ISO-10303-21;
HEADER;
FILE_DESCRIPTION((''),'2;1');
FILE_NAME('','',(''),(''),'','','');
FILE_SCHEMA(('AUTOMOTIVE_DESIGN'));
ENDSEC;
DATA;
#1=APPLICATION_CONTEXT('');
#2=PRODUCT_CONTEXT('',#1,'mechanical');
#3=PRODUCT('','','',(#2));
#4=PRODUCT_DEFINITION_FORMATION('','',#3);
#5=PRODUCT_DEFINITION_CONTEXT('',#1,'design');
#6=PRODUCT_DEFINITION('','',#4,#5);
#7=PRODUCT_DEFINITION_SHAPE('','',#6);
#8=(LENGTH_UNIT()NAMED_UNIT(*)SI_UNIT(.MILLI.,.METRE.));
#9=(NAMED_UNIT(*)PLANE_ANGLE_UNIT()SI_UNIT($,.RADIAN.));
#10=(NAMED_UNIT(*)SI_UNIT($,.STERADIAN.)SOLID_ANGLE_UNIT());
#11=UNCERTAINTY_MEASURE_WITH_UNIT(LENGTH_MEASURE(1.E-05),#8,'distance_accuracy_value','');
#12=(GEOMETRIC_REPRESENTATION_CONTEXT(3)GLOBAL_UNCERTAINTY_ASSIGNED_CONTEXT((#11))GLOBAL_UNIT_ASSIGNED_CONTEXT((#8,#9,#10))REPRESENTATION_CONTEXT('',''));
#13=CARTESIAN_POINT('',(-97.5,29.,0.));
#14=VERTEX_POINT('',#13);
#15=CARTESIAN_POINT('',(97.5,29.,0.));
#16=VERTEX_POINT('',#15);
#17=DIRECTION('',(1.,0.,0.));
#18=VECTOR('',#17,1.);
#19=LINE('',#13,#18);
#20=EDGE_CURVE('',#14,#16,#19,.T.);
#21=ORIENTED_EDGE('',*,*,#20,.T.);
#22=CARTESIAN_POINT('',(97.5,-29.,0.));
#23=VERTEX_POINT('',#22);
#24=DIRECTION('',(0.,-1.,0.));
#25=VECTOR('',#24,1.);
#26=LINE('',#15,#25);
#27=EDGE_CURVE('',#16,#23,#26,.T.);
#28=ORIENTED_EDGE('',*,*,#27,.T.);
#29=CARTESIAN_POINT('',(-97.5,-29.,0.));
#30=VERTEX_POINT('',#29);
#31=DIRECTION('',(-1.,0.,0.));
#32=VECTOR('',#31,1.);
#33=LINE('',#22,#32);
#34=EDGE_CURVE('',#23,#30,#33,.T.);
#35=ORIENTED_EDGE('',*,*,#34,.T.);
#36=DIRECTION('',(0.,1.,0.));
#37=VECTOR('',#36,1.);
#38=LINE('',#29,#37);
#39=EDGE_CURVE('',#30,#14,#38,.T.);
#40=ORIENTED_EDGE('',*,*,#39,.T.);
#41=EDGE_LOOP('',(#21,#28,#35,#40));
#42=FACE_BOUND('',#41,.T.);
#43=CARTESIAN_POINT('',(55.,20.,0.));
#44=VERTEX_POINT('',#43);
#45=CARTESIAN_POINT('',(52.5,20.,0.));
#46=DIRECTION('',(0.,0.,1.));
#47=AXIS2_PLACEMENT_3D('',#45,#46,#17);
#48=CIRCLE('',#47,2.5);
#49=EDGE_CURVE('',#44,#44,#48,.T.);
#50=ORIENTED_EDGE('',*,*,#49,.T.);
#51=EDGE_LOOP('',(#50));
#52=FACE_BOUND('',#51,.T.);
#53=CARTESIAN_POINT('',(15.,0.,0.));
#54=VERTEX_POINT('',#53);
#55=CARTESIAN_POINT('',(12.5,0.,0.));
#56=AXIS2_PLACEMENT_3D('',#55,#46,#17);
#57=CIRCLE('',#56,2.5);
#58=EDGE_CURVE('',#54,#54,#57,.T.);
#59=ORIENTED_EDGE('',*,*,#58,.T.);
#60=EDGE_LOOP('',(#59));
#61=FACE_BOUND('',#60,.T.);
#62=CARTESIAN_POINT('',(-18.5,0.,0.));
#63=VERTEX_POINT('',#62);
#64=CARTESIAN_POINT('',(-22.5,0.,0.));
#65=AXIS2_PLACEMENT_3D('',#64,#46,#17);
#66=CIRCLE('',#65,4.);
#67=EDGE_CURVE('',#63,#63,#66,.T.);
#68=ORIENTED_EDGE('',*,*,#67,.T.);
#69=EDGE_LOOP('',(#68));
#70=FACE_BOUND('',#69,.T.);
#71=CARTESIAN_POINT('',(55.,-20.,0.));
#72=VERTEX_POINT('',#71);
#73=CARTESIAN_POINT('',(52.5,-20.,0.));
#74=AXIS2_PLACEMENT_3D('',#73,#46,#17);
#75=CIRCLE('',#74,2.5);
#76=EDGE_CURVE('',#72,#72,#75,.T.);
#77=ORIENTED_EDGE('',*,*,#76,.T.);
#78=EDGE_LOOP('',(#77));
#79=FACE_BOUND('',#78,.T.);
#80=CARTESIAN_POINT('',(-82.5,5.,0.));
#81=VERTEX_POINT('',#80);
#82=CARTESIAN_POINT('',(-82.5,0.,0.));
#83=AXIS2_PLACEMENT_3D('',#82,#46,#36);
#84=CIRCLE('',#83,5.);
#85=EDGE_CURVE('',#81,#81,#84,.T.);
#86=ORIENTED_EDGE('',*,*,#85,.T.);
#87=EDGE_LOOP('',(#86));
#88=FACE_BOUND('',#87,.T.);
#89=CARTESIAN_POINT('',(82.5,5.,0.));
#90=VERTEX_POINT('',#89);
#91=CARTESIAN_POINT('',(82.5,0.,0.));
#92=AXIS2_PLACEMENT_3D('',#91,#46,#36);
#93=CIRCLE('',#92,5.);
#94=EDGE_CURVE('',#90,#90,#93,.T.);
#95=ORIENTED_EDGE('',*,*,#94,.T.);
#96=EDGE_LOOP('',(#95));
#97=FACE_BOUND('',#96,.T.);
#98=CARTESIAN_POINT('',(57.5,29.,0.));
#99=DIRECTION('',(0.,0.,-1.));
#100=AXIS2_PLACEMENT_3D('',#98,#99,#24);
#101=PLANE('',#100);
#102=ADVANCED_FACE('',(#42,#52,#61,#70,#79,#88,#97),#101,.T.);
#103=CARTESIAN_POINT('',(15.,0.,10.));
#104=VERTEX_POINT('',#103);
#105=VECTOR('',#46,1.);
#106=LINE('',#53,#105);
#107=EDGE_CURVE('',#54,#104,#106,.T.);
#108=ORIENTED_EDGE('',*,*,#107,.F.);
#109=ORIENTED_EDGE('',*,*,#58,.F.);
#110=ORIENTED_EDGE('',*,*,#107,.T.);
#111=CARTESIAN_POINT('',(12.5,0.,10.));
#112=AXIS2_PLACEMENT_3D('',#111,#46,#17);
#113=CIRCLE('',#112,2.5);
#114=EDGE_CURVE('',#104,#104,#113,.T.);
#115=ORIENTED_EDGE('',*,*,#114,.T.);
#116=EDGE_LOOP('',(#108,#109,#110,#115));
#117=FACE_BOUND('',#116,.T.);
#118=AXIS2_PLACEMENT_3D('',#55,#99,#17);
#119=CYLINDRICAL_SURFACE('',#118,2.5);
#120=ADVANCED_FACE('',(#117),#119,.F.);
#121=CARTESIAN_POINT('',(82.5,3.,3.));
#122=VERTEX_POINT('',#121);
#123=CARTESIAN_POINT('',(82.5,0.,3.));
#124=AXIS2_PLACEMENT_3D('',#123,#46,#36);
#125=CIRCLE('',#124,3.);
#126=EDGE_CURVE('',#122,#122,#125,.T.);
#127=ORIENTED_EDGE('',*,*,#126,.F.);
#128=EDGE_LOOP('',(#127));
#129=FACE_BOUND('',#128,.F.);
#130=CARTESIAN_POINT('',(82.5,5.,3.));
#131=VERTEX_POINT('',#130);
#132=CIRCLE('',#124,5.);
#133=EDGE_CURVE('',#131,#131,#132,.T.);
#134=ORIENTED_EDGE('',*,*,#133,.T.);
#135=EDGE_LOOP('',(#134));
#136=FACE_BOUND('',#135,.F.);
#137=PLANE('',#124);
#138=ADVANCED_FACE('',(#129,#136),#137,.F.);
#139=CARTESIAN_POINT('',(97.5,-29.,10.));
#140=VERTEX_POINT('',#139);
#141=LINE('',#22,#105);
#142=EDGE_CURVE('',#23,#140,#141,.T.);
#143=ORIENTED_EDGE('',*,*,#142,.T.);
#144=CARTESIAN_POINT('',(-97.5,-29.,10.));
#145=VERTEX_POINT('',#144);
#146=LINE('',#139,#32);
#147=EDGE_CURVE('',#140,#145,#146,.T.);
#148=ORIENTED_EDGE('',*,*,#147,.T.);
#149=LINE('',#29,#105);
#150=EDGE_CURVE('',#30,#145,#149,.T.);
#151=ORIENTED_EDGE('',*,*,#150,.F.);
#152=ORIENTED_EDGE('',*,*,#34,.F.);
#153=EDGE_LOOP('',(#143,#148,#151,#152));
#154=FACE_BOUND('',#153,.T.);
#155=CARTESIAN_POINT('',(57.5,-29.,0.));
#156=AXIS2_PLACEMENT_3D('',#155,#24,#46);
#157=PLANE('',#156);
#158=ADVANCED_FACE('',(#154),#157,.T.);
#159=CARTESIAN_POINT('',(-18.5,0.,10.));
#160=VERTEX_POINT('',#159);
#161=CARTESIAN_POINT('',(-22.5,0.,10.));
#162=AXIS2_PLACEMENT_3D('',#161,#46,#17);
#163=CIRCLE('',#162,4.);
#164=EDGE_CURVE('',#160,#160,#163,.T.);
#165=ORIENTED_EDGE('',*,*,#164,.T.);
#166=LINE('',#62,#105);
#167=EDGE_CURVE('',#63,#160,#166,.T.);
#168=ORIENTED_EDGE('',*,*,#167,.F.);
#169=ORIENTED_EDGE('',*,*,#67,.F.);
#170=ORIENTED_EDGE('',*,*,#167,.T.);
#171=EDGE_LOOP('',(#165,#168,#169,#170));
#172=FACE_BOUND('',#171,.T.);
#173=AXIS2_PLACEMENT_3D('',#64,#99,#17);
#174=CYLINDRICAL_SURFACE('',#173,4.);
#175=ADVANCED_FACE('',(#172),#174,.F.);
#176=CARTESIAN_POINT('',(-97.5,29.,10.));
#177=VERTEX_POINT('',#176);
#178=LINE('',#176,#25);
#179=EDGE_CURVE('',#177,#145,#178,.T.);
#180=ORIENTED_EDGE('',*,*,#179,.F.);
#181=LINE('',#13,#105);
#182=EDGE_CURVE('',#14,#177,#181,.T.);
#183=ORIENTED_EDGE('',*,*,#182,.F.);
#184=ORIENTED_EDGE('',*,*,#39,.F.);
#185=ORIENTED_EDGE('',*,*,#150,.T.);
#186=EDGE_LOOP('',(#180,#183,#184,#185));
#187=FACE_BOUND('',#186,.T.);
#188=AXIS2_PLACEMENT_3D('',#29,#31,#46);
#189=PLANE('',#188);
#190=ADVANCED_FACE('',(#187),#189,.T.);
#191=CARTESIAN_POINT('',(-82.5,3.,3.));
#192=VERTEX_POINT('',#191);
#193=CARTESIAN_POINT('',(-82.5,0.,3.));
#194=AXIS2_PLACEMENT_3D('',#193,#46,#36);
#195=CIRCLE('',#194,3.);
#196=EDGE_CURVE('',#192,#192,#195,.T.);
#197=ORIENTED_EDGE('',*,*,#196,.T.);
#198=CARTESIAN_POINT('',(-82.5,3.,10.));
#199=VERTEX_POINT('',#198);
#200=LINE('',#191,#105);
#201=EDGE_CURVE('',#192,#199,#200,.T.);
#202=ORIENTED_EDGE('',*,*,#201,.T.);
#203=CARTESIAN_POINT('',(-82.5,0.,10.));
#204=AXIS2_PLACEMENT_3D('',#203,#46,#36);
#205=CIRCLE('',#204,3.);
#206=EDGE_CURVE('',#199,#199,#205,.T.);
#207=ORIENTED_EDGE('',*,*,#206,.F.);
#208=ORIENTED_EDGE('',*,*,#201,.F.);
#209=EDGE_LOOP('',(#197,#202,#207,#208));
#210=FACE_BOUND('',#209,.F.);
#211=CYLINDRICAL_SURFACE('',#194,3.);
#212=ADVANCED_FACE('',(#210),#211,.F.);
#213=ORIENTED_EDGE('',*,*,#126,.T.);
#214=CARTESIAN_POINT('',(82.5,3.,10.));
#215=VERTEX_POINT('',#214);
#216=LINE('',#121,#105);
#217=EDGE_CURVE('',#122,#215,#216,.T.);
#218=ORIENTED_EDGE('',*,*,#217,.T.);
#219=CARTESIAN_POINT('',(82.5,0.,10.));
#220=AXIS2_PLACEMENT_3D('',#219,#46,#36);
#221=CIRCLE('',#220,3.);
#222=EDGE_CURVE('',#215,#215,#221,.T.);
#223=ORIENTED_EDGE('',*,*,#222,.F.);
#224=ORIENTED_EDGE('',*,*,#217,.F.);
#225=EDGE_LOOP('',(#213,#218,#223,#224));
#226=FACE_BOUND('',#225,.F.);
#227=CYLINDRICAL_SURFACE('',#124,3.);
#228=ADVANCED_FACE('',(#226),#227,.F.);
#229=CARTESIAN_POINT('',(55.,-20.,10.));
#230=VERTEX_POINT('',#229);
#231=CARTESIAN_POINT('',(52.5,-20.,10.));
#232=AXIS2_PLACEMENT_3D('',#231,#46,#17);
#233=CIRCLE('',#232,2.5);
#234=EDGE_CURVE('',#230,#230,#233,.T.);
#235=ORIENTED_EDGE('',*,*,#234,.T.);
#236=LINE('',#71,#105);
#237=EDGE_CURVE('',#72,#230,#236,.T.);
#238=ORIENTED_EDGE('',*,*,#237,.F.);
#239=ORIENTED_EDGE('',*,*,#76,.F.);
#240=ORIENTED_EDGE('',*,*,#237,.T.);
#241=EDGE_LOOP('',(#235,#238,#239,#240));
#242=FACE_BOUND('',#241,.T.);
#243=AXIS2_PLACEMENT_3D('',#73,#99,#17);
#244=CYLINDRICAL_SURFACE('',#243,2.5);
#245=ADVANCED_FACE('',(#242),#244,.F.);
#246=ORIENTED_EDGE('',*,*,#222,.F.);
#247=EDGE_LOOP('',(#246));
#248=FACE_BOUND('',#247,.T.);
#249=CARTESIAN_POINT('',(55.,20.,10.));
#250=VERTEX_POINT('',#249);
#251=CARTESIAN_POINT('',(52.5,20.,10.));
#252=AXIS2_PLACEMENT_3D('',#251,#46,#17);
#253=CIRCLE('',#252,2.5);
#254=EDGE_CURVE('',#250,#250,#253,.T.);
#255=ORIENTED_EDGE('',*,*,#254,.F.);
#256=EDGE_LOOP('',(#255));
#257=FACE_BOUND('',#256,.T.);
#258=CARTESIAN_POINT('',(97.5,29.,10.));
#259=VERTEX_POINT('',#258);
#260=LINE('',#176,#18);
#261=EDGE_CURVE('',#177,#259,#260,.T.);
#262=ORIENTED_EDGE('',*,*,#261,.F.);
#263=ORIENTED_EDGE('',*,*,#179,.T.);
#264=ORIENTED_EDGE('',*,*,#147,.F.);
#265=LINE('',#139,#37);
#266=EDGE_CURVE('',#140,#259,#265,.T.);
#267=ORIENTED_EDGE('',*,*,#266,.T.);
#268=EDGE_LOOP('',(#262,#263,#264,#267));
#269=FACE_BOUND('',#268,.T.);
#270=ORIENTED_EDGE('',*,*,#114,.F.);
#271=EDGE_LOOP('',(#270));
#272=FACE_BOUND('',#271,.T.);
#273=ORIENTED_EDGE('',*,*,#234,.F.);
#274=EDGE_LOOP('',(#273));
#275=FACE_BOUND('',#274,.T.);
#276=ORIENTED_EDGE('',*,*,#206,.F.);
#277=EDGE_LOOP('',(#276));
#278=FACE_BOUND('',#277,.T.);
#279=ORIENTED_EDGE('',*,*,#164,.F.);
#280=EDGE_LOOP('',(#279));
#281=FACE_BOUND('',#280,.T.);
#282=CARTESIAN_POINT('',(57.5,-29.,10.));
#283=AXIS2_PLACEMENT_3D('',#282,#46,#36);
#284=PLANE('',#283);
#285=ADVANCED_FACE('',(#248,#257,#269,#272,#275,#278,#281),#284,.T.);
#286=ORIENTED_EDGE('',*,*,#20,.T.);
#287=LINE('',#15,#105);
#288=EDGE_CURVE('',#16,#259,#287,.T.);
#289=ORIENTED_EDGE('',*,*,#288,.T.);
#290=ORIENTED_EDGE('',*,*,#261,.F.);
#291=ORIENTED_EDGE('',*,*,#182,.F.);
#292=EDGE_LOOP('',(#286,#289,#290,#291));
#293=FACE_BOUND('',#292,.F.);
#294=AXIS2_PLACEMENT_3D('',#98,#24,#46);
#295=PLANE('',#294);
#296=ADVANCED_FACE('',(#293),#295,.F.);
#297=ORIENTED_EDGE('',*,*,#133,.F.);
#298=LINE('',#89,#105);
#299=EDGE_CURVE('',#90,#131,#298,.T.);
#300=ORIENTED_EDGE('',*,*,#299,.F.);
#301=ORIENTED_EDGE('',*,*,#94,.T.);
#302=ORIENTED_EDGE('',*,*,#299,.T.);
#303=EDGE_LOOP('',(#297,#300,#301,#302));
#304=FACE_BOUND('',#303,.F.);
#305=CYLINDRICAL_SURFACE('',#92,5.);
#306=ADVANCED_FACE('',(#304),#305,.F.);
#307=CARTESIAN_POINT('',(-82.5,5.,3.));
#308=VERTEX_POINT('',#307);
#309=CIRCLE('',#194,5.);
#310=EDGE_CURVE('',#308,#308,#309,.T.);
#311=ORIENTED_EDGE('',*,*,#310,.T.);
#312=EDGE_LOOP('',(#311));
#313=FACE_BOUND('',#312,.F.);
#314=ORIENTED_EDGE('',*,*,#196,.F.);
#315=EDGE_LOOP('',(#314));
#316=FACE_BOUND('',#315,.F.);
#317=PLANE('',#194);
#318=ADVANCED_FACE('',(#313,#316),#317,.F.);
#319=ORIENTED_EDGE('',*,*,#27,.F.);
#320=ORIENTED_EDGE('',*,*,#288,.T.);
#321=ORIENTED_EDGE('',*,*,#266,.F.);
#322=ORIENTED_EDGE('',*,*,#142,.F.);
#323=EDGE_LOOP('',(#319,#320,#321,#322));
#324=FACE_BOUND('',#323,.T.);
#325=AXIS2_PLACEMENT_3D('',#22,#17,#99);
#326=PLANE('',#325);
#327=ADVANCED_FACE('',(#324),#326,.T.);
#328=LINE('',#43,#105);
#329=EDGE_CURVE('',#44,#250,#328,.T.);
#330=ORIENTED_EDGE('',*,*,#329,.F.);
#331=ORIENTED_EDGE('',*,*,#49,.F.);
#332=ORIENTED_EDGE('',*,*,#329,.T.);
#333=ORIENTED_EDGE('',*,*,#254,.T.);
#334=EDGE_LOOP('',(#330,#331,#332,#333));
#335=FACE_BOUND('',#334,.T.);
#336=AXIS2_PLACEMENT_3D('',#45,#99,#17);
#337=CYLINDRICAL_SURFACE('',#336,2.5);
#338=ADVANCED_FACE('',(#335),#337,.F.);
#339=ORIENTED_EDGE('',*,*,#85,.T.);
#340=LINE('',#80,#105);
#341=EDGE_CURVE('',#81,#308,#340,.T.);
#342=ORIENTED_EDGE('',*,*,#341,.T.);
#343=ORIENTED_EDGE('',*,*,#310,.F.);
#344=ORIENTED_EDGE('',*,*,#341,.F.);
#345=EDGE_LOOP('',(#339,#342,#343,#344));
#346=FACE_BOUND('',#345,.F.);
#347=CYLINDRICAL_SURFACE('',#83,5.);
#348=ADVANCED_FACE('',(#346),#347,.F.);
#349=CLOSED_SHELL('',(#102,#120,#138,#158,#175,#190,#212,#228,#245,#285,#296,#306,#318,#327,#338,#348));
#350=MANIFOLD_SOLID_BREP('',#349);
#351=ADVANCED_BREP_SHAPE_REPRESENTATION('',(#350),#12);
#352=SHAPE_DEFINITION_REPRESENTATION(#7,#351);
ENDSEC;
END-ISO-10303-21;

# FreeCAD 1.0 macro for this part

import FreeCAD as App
import Part
import Sketcher
from FreeCAD import Vector


def add_polygon(sketch, points):
    """Adds a closed chain of lines whose ends are joined by coincident constraints."""
    first, n = sketch.GeometryCount, len(points)
    for a, b in zip(points, points[1:] + points[:1]):
        sketch.addGeometry(Part.LineSegment(App.Vector(*a, 0), App.Vector(*b, 0)), False)
    for i in range(n):
        sketch.addConstraint(Sketcher.Constraint("Coincident", first + i, 2, first + (i + 1) % n, 1))

doc = App.newDocument("Part")
params = doc.addObject("Spreadsheet::Sheet", "Params")
for row, (alias, value) in enumerate([
    ("sketch1_diameter", "5 mm"),
    ("sketch1_diameter2", "8 mm"),
    ("sketch1_width", "115 mm"),
    ("sketch1_height", "58 mm"),
    ("pad1_length", "10 mm"),
    ("sketch2_width", "58 mm"),
    ("sketch2_height", "10 mm"),
    ("pad2_length", "40 mm"),
    ("sketch3_width", "58 mm"),
    ("sketch3_height", "10 mm"),
    ("pad3_length", "40 mm"),
    ("sketch4_diameter", "6 mm"),
    ("hole_diameter", "6 mm"),
    ("hole_cbore_diameter", "10 mm"),
    ("hole_cbore_depth", "3 mm"),
    ("sketch5_diameter", "6 mm"),
    ("hole2_diameter", "6 mm"),
    ("hole2_cbore_diameter", "10 mm"),
    ("hole2_cbore_depth", "3 mm"),
], start=1):
    params.set(f"A{row}", alias)
    params.set(f"B{row}", "=" + value)
    params.setAlias(f"B{row}", alias)

body = doc.addObject("PartDesign::Body", "Body")

sketch1 = body.newObject("Sketcher::SketchObject", "Sketch")
sketch1.AttachmentSupport = (doc.getObject("XY_Plane"), [""])
sketch1.MapMode = "FlatFace"
add_polygon(sketch1, [(57.5, 29), (-57.5, 29), (-57.5, -29), (57.5, -29)])
sketch1.addGeometry(Part.Circle(Vector(52.5, -20, 0), Vector(0, 0, 1), 2.5), False)
sketch1.addGeometry(Part.Circle(Vector(-22.5, 0, 0), Vector(0, 0, 1), 4), False)
sketch1.addGeometry(Part.Circle(Vector(12.5, 0, 0), Vector(0, 0, 1), 2.5), False)
sketch1.addGeometry(Part.Circle(Vector(52.5, 20, 0), Vector(0, 0, 1), 2.5), False)
sketch1.addConstraint(Sketcher.Constraint("Horizontal", 0))
sketch1.addConstraint(Sketcher.Constraint("Vertical", 1))
sketch1.addConstraint(Sketcher.Constraint("Horizontal", 2))
sketch1.addConstraint(Sketcher.Constraint("Vertical", 3))
sketch1.addConstraint(Sketcher.Constraint("Equal", 4, 6))
sketch1.addConstraint(Sketcher.Constraint("Equal", 6, 7))
sketch1.addConstraint(Sketcher.Constraint("Symmetric", 0, 2, 2, 2, -1, 1))
sketch1.addConstraint(Sketcher.Constraint("Symmetric", 4, 3, 7, 3, -1))
sketch1.addConstraint(Sketcher.Constraint("PointOnObject", 5, 3, -1))
sketch1.addConstraint(Sketcher.Constraint("PointOnObject", 6, 3, -1))
sketch1.addConstraint(Sketcher.Constraint("Diameter", 4, 5.0))
sketch1.addConstraint(Sketcher.Constraint("Diameter", 5, 8.0))
sketch1.addConstraint(Sketcher.Constraint("DistanceX", 0, 2, 0, 1, 115.0))
sketch1.addConstraint(Sketcher.Constraint("DistanceY", 1, 2, 1, 1, 58.0))
sketch1.addConstraint(Sketcher.Constraint("DistanceY", 4, 3, -1, 1, 20.0))
sketch1.addConstraint(Sketcher.Constraint("DistanceX", 6, 3, 4, 3, 40.0))
sketch1.addConstraint(Sketcher.Constraint("DistanceX", 4, 3, 2, 2, 5.0))
sketch1.addConstraint(Sketcher.Constraint("DistanceX", 5, 3, 2, 2, 80.0))
sketch1.setExpression("Constraints[14]", "Params.sketch1_diameter")
sketch1.setExpression("Constraints[15]", "Params.sketch1_diameter2")
sketch1.setExpression("Constraints[16]", "Params.sketch1_width")
sketch1.setExpression("Constraints[17]", "Params.sketch1_height")
pad1 = body.newObject("PartDesign::Pad", "Pad")
pad1.Profile = sketch1
pad1.setExpression("Length", "Params.pad1_length")

sketch2 = body.newObject("Sketcher::SketchObject", "Sketch001")
sketch2.AttachmentSupport = (doc.getObject("YZ_Plane"), [""])
sketch2.MapMode = "FlatFace"
sketch2.AttachmentOffset = App.Placement(Vector(0, 0, -57.5), App.Rotation())
add_polygon(sketch2, [(29, 0), (-29, 0), (-29, 10), (29, 10)])
sketch2.addConstraint(Sketcher.Constraint("Horizontal", 0))
sketch2.addConstraint(Sketcher.Constraint("Vertical", 1))
sketch2.addConstraint(Sketcher.Constraint("Horizontal", 2))
sketch2.addConstraint(Sketcher.Constraint("Vertical", 3))
sketch2.addConstraint(Sketcher.Constraint("Symmetric", 0, 2, 3, 2, -1, 1))
sketch2.addConstraint(Sketcher.Constraint("DistanceX", 0, 2, 0, 1, 58.0))
sketch2.addConstraint(Sketcher.Constraint("DistanceY", 1, 1, 1, 2, 10.0))
sketch2.setExpression("Constraints[9]", "Params.sketch2_width")
sketch2.setExpression("Constraints[10]", "Params.sketch2_height")
pad2 = body.newObject("PartDesign::Pad", "Pad001")
pad2.Profile = sketch2
pad2.setExpression("Length", "Params.pad2_length")
pad2.Reversed = True

sketch3 = body.newObject("Sketcher::SketchObject", "Sketch002")
sketch3.AttachmentSupport = (doc.getObject("YZ_Plane"), [""])
sketch3.MapMode = "FlatFace"
sketch3.AttachmentOffset = App.Placement(Vector(0, 0, 57.5), App.Rotation())
add_polygon(sketch3, [(-29, 0), (29, 0), (29, 10), (-29, 10)])
sketch3.addConstraint(Sketcher.Constraint("Horizontal", 0))
sketch3.addConstraint(Sketcher.Constraint("Vertical", 1))
sketch3.addConstraint(Sketcher.Constraint("Horizontal", 2))
sketch3.addConstraint(Sketcher.Constraint("Vertical", 3))
sketch3.addConstraint(Sketcher.Constraint("Symmetric", 0, 2, 3, 2, -1, 1))
sketch3.addConstraint(Sketcher.Constraint("DistanceX", 0, 1, 0, 2, 58.0))
sketch3.addConstraint(Sketcher.Constraint("DistanceY", 1, 1, 1, 2, 10.0))
sketch3.setExpression("Constraints[9]", "Params.sketch3_width")
sketch3.setExpression("Constraints[10]", "Params.sketch3_height")
pad3 = body.newObject("PartDesign::Pad", "Pad002")
pad3.Profile = sketch3
pad3.setExpression("Length", "Params.pad3_length")

sketch4 = body.newObject("Sketcher::SketchObject", "Sketch003")
sketch4.AttachmentSupport = (doc.getObject("XY_Plane"), [""])
sketch4.MapMode = "FlatFace"
sketch4.addGeometry(Part.Circle(Vector(82.5, 0, 0), Vector(0, 0, 1), 3), False)
sketch4.addConstraint(Sketcher.Constraint("PointOnObject", 0, 3, -1))
sketch4.addConstraint(Sketcher.Constraint("Diameter", 0, 6.0))
sketch4.addConstraint(Sketcher.Constraint("DistanceX", -1, 1, 0, 3, 82.5))
sketch4.setExpression("Constraints[1]", "Params.sketch4_diameter")
doc.recompute()
hole = body.newObject("PartDesign::Hole", "Hole")
hole.Profile = sketch4
hole.ThreadType = "None"
hole.setExpression("Diameter", "Params.hole_diameter")
hole.DepthType = "ThroughAll"
hole.HoleCutType = "Counterbore"
hole.setExpression("HoleCutDiameter", "Params.hole_cbore_diameter")
hole.setExpression("HoleCutDepth", "Params.hole_cbore_depth")
hole.Reversed = True

sketch5 = body.newObject("Sketcher::SketchObject", "Sketch004")
sketch5.AttachmentSupport = (doc.getObject("XY_Plane"), [""])
sketch5.MapMode = "FlatFace"
sketch5.addGeometry(Part.Circle(Vector(-82.5, 0, 0), Vector(0, 0, 1), 3), False)
sketch5.addConstraint(Sketcher.Constraint("PointOnObject", 0, 3, -1))
sketch5.addConstraint(Sketcher.Constraint("Diameter", 0, 6.0))
sketch5.addConstraint(Sketcher.Constraint("DistanceX", 0, 3, -1, 1, 82.5))
sketch5.setExpression("Constraints[1]", "Params.sketch5_diameter")
doc.recompute()
hole2 = body.newObject("PartDesign::Hole", "Hole001")
hole2.Profile = sketch5
hole2.ThreadType = "None"
hole2.setExpression("Diameter", "Params.hole2_diameter")
hole2.DepthType = "ThroughAll"
hole2.HoleCutType = "Counterbore"
hole2.setExpression("HoleCutDiameter", "Params.hole2_cbore_diameter")
hole2.setExpression("HoleCutDepth", "Params.hole2_cbore_depth")
hole2.Reversed = True

doc.recompute()
